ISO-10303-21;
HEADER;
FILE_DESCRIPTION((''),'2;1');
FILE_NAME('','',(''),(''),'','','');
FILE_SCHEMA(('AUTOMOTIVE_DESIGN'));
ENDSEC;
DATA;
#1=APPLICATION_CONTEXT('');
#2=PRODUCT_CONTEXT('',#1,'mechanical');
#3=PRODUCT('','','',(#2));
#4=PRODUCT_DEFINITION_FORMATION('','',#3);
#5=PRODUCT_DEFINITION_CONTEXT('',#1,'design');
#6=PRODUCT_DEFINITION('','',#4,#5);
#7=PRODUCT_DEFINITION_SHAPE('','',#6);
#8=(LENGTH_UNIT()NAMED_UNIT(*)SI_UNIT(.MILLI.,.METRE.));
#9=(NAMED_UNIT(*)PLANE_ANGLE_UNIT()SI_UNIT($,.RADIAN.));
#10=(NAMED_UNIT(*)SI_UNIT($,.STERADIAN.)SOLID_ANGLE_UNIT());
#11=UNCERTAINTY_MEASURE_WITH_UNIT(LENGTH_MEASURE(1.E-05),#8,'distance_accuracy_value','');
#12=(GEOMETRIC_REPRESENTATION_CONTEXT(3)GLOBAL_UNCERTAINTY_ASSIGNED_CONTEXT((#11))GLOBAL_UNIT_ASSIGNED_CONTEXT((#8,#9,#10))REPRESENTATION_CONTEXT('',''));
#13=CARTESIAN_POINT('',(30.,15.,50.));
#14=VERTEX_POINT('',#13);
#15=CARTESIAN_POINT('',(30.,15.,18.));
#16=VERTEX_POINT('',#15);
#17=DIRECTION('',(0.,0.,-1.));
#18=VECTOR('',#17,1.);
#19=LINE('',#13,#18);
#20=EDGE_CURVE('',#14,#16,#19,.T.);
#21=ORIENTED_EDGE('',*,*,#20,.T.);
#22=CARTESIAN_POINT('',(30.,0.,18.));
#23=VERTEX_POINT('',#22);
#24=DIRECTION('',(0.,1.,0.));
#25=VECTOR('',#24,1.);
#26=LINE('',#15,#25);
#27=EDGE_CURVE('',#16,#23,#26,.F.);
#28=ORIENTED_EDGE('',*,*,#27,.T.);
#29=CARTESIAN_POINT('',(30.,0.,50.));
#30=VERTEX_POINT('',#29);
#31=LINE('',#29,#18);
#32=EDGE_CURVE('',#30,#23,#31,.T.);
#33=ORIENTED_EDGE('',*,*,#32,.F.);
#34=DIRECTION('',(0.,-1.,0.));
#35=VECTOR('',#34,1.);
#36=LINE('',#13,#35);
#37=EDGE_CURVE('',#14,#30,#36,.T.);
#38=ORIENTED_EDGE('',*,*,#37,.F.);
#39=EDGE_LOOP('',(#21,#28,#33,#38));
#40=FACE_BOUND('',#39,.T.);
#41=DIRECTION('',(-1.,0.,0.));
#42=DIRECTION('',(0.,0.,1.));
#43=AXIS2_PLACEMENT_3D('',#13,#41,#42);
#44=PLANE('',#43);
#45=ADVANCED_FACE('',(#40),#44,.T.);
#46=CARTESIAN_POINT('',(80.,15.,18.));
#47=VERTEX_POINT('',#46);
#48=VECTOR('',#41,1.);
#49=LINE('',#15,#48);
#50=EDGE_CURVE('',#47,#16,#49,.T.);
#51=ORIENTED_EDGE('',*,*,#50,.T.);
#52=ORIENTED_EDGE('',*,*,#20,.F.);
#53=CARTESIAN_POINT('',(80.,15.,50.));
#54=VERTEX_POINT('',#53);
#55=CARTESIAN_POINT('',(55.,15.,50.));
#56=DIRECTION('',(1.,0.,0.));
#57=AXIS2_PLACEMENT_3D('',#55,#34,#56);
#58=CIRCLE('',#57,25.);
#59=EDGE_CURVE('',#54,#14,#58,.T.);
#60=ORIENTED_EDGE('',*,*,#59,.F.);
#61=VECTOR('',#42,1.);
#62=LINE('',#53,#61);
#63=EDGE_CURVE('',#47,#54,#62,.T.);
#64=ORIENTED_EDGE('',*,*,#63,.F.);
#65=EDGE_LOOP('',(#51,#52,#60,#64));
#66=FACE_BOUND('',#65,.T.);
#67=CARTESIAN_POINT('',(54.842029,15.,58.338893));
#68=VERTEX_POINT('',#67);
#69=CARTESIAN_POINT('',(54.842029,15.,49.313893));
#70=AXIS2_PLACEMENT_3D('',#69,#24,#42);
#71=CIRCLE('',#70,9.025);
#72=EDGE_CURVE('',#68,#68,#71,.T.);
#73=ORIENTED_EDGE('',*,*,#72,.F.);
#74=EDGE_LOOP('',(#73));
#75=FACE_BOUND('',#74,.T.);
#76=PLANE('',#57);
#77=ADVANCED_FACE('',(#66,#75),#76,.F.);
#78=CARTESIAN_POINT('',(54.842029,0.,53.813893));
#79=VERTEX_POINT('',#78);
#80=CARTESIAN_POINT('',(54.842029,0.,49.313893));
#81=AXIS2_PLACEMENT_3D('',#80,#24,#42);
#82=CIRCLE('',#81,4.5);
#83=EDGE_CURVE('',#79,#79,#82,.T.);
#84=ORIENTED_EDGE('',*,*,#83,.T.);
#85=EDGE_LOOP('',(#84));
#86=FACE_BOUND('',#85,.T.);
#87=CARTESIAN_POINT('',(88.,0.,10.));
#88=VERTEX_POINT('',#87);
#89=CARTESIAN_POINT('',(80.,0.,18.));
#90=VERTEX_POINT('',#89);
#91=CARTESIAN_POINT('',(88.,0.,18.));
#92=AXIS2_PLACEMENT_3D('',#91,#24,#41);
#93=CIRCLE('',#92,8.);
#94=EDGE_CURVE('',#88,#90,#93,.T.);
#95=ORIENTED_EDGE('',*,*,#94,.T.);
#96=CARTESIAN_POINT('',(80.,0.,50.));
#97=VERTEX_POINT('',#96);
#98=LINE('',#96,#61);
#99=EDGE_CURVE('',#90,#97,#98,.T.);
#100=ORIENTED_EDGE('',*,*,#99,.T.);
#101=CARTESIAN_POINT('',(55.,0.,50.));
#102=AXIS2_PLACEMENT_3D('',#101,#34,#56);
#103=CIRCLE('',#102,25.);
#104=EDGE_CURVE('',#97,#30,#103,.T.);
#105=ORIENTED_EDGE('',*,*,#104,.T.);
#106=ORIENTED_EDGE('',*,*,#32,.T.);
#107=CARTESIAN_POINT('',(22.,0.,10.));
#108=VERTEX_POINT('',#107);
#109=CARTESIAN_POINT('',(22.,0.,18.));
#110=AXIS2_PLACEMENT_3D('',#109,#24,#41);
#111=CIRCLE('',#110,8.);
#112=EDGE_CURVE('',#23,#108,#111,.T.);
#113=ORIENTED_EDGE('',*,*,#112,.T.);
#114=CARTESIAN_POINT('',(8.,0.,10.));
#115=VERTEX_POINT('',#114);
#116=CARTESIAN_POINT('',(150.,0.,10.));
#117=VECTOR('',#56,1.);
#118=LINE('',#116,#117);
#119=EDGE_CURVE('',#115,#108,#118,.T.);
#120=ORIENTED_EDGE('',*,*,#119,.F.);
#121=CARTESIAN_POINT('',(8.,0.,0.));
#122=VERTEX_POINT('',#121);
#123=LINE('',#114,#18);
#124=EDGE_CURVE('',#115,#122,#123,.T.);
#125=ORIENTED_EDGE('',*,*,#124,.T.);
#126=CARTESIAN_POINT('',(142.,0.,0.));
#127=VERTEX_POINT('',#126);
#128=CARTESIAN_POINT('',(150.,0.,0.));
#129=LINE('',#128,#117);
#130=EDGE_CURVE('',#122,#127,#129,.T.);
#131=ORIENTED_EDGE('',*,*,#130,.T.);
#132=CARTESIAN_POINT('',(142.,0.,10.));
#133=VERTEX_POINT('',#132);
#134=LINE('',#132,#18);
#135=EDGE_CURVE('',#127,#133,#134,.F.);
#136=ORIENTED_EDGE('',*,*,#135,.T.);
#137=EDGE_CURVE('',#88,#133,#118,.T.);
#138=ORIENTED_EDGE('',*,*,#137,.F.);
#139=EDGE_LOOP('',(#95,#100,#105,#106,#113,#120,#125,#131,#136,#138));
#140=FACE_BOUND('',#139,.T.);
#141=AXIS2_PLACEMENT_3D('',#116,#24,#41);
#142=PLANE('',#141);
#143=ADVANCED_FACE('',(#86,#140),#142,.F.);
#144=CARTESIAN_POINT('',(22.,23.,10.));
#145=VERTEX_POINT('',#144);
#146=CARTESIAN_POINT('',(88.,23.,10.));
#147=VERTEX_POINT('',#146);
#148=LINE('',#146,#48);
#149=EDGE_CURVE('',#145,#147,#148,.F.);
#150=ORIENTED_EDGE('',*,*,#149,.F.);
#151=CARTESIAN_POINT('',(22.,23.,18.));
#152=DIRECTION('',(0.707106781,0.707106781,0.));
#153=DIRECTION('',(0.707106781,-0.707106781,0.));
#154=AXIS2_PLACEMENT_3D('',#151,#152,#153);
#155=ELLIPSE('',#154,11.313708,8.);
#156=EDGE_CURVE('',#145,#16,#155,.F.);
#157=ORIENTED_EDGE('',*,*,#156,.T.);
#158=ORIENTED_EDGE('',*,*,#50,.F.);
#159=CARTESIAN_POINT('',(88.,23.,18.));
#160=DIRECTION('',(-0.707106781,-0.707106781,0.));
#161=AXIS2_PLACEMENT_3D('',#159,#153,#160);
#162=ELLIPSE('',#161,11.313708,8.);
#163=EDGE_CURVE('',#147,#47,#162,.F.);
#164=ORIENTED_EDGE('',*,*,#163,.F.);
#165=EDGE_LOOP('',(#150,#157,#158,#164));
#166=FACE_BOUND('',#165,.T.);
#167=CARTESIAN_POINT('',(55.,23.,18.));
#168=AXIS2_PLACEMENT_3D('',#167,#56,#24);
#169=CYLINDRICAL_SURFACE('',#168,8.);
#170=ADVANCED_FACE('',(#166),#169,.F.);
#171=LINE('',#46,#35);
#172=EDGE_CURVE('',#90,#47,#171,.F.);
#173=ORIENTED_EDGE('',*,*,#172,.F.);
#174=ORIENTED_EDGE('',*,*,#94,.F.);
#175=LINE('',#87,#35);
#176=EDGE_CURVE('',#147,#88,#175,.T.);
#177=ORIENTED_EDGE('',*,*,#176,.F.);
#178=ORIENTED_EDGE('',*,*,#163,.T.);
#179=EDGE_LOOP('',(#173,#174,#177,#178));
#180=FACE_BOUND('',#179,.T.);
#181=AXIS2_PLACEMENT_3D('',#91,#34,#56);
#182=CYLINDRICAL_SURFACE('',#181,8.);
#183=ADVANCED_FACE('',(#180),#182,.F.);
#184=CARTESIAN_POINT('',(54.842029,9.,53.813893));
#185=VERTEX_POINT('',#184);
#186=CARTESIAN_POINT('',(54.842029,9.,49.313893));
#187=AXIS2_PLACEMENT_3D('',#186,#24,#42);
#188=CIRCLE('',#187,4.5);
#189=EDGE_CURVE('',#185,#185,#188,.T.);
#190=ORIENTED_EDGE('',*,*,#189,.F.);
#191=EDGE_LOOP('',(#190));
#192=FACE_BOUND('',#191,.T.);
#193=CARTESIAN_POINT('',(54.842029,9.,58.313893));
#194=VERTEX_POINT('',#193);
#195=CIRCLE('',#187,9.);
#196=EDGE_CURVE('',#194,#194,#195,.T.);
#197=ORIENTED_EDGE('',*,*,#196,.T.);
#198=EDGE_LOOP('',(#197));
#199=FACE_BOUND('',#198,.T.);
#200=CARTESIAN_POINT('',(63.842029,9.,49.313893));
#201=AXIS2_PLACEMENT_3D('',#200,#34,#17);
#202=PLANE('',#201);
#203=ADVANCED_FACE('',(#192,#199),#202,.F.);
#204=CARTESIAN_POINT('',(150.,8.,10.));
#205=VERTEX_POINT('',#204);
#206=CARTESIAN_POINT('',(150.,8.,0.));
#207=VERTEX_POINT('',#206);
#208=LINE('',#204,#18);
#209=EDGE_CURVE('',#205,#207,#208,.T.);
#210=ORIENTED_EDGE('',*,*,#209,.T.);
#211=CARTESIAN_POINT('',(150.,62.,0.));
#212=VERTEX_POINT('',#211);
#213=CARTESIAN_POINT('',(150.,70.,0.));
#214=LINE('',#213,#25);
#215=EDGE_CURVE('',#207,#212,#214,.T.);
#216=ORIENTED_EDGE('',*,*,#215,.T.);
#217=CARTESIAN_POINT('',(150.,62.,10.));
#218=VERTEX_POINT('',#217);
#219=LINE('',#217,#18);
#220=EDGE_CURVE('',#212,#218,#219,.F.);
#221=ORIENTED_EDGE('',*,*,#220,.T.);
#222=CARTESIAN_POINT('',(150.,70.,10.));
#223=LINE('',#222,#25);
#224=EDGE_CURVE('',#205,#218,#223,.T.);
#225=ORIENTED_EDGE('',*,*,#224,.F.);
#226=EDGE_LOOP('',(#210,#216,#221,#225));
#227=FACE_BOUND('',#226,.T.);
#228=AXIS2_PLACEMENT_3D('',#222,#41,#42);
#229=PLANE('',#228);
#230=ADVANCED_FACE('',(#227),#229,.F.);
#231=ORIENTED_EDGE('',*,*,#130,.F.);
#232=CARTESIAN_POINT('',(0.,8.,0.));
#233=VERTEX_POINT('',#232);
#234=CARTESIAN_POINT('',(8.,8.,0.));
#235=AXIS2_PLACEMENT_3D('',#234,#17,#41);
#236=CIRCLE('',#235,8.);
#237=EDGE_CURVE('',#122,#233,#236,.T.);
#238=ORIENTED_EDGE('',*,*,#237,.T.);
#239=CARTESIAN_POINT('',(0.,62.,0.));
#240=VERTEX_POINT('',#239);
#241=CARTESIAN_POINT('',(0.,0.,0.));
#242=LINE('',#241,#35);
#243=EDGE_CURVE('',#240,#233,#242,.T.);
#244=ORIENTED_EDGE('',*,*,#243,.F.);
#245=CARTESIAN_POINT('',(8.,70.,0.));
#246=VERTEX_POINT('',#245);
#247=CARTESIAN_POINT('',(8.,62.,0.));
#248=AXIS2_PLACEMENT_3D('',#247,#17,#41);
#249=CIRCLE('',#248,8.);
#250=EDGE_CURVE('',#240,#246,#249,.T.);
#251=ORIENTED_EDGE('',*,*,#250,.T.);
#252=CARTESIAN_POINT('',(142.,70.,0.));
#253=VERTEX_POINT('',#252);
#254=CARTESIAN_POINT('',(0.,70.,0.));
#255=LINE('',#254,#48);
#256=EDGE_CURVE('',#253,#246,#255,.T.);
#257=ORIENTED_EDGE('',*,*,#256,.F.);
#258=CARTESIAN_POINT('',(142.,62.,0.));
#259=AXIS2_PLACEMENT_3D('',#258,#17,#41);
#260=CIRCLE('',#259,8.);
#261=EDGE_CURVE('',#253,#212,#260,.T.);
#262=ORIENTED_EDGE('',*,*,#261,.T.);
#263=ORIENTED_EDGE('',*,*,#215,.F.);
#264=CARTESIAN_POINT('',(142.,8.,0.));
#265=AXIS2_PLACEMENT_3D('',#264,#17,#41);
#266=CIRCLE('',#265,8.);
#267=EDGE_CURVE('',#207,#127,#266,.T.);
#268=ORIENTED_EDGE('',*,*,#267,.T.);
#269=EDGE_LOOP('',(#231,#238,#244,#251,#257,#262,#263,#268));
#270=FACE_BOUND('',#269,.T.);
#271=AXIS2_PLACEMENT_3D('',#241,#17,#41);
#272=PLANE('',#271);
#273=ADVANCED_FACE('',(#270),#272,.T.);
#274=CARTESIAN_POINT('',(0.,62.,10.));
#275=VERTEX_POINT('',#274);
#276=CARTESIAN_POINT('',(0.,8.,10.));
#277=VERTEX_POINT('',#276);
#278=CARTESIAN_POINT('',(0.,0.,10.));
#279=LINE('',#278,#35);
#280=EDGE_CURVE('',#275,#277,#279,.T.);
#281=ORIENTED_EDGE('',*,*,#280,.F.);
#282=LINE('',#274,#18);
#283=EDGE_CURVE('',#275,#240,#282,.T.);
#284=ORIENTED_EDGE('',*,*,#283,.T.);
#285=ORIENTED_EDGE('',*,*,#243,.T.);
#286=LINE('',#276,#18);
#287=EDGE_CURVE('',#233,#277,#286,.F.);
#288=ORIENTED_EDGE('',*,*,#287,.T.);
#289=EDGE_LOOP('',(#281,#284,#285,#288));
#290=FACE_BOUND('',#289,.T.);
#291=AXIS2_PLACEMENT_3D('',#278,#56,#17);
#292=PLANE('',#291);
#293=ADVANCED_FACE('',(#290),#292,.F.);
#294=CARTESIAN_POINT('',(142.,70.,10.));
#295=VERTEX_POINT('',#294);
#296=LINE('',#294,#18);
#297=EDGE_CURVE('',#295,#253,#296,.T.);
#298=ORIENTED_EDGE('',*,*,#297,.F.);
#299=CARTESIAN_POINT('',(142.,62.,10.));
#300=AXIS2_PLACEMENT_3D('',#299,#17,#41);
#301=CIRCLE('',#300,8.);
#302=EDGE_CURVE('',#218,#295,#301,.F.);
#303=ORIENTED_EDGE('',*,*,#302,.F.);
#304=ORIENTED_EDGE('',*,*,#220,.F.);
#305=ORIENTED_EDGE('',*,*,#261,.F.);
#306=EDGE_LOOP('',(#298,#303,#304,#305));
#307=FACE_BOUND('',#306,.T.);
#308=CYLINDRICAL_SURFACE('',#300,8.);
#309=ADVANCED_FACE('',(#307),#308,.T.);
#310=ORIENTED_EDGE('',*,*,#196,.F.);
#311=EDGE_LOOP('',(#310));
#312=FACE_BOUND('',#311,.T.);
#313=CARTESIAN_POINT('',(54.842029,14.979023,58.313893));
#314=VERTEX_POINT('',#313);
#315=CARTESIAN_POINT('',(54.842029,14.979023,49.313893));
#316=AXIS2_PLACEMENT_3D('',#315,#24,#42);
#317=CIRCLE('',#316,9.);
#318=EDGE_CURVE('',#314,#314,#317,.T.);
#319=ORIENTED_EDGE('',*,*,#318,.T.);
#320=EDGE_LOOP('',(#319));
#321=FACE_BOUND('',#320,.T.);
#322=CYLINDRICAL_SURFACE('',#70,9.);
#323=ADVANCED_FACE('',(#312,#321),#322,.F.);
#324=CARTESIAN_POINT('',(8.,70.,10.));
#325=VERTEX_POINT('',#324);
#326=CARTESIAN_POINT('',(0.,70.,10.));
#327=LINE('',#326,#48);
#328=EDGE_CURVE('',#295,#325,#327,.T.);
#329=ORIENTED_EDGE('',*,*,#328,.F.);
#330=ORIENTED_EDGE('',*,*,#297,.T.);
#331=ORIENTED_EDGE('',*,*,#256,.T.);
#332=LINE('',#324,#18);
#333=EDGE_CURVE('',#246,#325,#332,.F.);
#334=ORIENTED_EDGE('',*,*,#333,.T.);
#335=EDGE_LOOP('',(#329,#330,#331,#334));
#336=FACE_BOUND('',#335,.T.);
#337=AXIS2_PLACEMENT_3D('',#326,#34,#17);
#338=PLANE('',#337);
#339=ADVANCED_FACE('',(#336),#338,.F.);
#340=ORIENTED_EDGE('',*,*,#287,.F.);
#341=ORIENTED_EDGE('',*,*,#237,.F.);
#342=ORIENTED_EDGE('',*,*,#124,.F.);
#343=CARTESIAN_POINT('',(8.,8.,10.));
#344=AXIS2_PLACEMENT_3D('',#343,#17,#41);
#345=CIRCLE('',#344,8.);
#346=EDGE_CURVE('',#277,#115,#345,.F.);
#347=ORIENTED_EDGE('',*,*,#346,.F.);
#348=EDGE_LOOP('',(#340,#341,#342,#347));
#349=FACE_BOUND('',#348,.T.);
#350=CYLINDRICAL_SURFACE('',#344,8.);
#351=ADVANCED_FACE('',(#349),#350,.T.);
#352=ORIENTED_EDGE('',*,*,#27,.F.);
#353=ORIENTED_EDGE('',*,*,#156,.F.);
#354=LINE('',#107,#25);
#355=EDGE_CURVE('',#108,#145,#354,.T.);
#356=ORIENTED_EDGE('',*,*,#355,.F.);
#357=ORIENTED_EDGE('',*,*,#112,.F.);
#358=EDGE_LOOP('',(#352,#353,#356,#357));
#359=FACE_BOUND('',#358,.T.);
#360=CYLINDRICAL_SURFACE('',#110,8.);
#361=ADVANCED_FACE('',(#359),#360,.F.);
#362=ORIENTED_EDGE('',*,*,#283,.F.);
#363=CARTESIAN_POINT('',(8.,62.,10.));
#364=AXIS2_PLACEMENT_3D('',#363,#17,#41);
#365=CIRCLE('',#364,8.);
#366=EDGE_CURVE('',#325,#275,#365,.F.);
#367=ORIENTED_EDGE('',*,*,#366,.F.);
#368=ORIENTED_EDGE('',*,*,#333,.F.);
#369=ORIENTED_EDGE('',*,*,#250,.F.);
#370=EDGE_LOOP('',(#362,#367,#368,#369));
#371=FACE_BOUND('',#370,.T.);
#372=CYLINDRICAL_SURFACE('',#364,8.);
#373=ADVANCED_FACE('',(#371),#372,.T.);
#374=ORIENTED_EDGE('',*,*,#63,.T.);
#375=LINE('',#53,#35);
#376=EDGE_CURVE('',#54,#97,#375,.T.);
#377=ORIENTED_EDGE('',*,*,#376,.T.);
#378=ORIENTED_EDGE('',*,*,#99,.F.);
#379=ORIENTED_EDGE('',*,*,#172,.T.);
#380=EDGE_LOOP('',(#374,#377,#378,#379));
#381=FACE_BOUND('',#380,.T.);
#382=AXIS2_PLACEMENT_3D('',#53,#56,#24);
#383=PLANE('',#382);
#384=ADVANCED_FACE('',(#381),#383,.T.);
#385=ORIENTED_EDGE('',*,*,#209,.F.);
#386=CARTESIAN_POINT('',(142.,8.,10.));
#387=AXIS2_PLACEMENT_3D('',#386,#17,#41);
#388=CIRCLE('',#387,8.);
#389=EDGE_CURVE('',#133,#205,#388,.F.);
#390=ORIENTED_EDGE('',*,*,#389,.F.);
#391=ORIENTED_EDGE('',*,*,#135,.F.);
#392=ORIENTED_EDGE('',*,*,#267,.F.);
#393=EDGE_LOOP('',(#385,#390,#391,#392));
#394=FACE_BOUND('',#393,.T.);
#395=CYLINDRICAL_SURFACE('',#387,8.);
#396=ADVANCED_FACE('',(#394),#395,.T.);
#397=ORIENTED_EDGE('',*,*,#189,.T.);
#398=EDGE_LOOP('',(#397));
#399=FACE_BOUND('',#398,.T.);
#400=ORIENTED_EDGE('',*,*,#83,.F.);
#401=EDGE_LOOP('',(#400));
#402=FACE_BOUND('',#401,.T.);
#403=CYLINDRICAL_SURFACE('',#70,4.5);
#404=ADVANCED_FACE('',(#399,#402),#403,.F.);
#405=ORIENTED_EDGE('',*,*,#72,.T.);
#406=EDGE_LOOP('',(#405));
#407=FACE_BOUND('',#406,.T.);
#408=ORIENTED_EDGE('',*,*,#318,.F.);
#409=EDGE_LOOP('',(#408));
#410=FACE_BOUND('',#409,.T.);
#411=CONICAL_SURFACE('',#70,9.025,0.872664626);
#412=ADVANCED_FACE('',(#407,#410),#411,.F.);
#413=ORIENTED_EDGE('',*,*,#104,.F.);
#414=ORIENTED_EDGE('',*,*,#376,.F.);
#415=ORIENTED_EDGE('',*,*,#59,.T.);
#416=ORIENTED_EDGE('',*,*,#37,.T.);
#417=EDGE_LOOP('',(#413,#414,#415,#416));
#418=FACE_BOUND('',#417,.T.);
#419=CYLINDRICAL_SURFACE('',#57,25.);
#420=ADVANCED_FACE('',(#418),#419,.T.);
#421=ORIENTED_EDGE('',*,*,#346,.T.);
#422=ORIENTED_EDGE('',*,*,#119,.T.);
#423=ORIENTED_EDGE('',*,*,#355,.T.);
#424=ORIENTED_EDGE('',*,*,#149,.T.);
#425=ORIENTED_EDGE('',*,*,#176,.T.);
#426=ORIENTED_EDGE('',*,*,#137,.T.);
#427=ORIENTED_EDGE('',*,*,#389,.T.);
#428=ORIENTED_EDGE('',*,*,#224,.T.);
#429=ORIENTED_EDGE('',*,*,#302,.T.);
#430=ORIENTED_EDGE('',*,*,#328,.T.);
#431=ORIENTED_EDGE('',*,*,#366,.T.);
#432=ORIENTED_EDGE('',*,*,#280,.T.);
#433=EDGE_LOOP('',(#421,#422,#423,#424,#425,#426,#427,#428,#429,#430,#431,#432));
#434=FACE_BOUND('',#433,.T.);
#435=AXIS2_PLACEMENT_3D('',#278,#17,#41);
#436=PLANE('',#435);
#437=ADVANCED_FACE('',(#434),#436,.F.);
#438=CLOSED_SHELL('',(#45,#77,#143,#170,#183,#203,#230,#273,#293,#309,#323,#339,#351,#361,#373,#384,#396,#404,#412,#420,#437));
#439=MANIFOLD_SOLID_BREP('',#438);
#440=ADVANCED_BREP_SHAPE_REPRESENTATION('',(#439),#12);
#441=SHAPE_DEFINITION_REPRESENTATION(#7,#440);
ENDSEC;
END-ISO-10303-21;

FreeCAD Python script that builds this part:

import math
import FreeCAD as App
import Part
import Sketcher
from FreeCAD import Vector
Q = App.Units.Quantity


def edges_at(feature, points):
    """Names of the edges that pass closest to the given points."""
    edges = feature.Shape.Edges
    near = lambda p: min(range(len(edges)), key=lambda i: edges[i].distToShape(Part.Vertex(*p))[0])
    return sorted({f"Edge{near(p) + 1}" for p in points})

doc = App.newDocument("Part")
body = doc.addObject("PartDesign::Body", "Body")

# Sketch on XY plane
sketch1 = body.newObject("Sketcher::SketchObject", "Sketch")
sketch1.AttachmentSupport = (doc.getObject("XY_Plane"), [""])
sketch1.MapMode = "FlatFace"
sketch1.addGeometry([
    Part.LineSegment(Vector(0, 70, 0), Vector(0, 0, 0)),
    Part.LineSegment(Vector(0, 0, 0), Vector(150, 0, 0)),
    Part.LineSegment(Vector(150, 0, 0), Vector(150, 70, 0)),
    Part.LineSegment(Vector(150, 70, 0), Vector(0, 70, 0)),
], False)
sketch1.addConstraint([
    Sketcher.Constraint("Coincident", 0, 2, 1, 1),
    Sketcher.Constraint("Coincident", 1, 2, 2, 1),
    Sketcher.Constraint("Coincident", 2, 2, 3, 1),
    Sketcher.Constraint("Coincident", 3, 2, 0, 1),
    Sketcher.Constraint("Vertical", 0),
    Sketcher.Constraint("Horizontal", 1),
    Sketcher.Constraint("Vertical", 2),
    Sketcher.Constraint("Horizontal", 3),
    Sketcher.Constraint("Coincident", 0, 2, -1, 1),
    Sketcher.Constraint("DistanceX", 1, 1, 1, 2, 150.0),
    Sketcher.Constraint("DistanceY", 0, 2, 0, 1, 70.0),
])
pad1 = body.newObject("PartDesign::Pad", "Pad")
pad1.Profile = sketch1
pad1.Length = 10

# Sketch on XZ plane
sketch2 = body.newObject("Sketcher::SketchObject", "Sketch001")
sketch2.AttachmentSupport = (doc.getObject("XZ_Plane"), [""])
sketch2.MapMode = "FlatFace"
sketch2.addGeometry([
    Part.LineSegment(Vector(80, 0, 0), Vector(80, 50, 0)),
    Part.ArcOfCircle(Part.Circle(Vector(55, 50, 0), Vector(0, 0, 1), 25), math.radians(0), math.radians(180)),
    Part.LineSegment(Vector(30, 50, 0), Vector(30, 0, 0)),
    Part.LineSegment(Vector(30, 0, 0), Vector(80, 0, 0)),
], False)
sketch2.addConstraint([
    Sketcher.Constraint("Tangent", 0, 2, 1, 1),
    Sketcher.Constraint("Tangent", 1, 2, 2, 1),
    Sketcher.Constraint("Coincident", 2, 2, 3, 1),
    Sketcher.Constraint("Coincident", 3, 2, 0, 1),
    Sketcher.Constraint("Vertical", 0),
    Sketcher.Constraint("Vertical", 2),
    Sketcher.Constraint("Horizontal", 3),
    Sketcher.Constraint("PointOnObject", 2, 2, -1),
    Sketcher.Constraint("Equal", 3, 0),
    Sketcher.Constraint("Radius", 1, 25.0),
    Sketcher.Constraint("DistanceX", -1, 1, 1, 3, 55.0),
])
pad2 = body.newObject("PartDesign::Pad", "Pad001")
pad2.Profile = sketch2
pad2.Length = 15
pad2.Reversed = True
doc.recompute()

fillet = body.newObject("PartDesign::Fillet", "Fillet")
fillet.Base = (pad2, edges_at(pad2, [(80, 7.5, 10)]))
fillet.Radius = 8
doc.recompute()

fillet2 = body.newObject("PartDesign::Fillet", "Fillet001")
fillet2.Base = (fillet, edges_at(fillet, [(59, 15, 10)]))
fillet2.Radius = 8
doc.recompute()

fillet3 = body.newObject("PartDesign::Fillet", "Fillet002")
fillet3.Base = (fillet2, edges_at(fillet2, [(30, 11.5, 10)]))
fillet3.Radius = 8
doc.recompute()

fillet4 = body.newObject("PartDesign::Fillet", "Fillet003")
fillet4.Base = (fillet3, edges_at(fillet3, [(150, 70, 5)]))
fillet4.Radius = 8
doc.recompute()

fillet5 = body.newObject("PartDesign::Fillet", "Fillet004")
fillet5.Base = (fillet4, edges_at(fillet4, [(150, 0, 5)]))
fillet5.Radius = 8
doc.recompute()

fillet6 = body.newObject("PartDesign::Fillet", "Fillet005")
fillet6.Base = (fillet5, edges_at(fillet5, [(0, 70, 5)]))
fillet6.Radius = 8
doc.recompute()

fillet7 = body.newObject("PartDesign::Fillet", "Fillet006")
fillet7.Base = (fillet6, edges_at(fillet6, [(0, 0, 5)]))
fillet7.Radius = 8

# Sketch on YZ plane
sketch3 = body.newObject("Sketcher::SketchObject", "Sketch002")
sketch3.AttachmentSupport = (doc.getObject("YZ_Plane"), [""])
sketch3.MapMode = "FlatFace"
sketch3.AttachmentOffset = App.Placement(Vector(0, 0, 54.842029), App.Rotation())
sketch3.addGeometry([
    Part.LineSegment(Vector(0, 49.314, 0), Vector(15, 49.314, 0)),  # 0
    Part.LineSegment(Vector(15, 49.314, 0), Vector(15, 58.339, 0)),  # 1
    Part.LineSegment(Vector(15, 58.339, 0), Vector(14.979, 58.314, 0)),  # 2
    Part.LineSegment(Vector(14.979, 58.314, 0), Vector(9, 58.314, 0)),  # 3
    Part.LineSegment(Vector(9, 58.314, 0), Vector(9, 53.814, 0)),  # 4
    Part.LineSegment(Vector(9, 53.814, 0), Vector(0, 53.814, 0)),  # 5
    Part.LineSegment(Vector(0, 53.814, 0), Vector(0, 49.314, 0)),  # 6
], False)
sketch3.addGeometry(Part.LineSegment(Vector(15, 49.314, 0), Vector(0, 49.314, 0)), True)  # axis
sketch3.addConstraint([
    Sketcher.Constraint("Coincident", 0, 2, 1, 1),
    Sketcher.Constraint("Coincident", 1, 2, 2, 1),
    Sketcher.Constraint("Coincident", 2, 2, 3, 1),
    Sketcher.Constraint("Coincident", 3, 2, 4, 1),
    Sketcher.Constraint("Coincident", 4, 2, 5, 1),
    Sketcher.Constraint("Coincident", 5, 2, 6, 1),
    Sketcher.Constraint("Coincident", 6, 2, 0, 1),
    Sketcher.Constraint("Horizontal", 0),
    Sketcher.Constraint("Vertical", 1),
    Sketcher.Constraint("Horizontal", 3),
    Sketcher.Constraint("Vertical", 4),
    Sketcher.Constraint("Horizontal", 5),
    Sketcher.Constraint("Vertical", 6),
    Sketcher.Constraint("Horizontal", 7),
    Sketcher.Constraint("Coincident", 7, 1, 0, 2),
    Sketcher.Constraint("PointOnObject", 5, 2, -2),
    Sketcher.Constraint("PointOnObject", 7, 2, -2),
    Sketcher.Constraint("Equal", 4, 6),
    Sketcher.Constraint("DistanceX", 0, 1, 0, 2, 15.0),
    Sketcher.Constraint("DistanceX", 5, 2, 5, 1, 9.0),
    Sketcher.Constraint("Angle", 2, Q("-130 deg")),
    Sketcher.Constraint("DistanceY", 4, 2, 4, 1, 4.5),
    Sketcher.Constraint("DistanceY", 1, 1, 1, 2, 9.025),
    Sketcher.Constraint("DistanceY", -1, 1, 0, 2, 49.313893),
])
groove = body.newObject("PartDesign::Groove", "Groove")
groove.Profile = sketch3
groove.ReferenceAxis = (sketch3, ["Axis0"])
groove.Angle = 360

doc.recompute()
